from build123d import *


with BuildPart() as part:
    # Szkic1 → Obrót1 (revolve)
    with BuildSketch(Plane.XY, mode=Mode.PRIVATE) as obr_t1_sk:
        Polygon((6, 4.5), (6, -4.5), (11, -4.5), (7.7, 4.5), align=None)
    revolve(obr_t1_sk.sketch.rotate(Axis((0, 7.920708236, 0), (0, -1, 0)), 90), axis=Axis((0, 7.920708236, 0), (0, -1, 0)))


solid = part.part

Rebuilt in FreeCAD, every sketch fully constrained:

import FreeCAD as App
import Part
import Sketcher
from FreeCAD import Vector


def add_polygon(sketch, points):
    """Adds a closed chain of lines whose ends are joined by coincident constraints."""
    first, n = sketch.GeometryCount, len(points)
    for a, b in zip(points, points[1:] + points[:1]):
        sketch.addGeometry(Part.LineSegment(App.Vector(*a, 0), App.Vector(*b, 0)), False)
    for i in range(n):
        sketch.addConstraint(Sketcher.Constraint("Coincident", first + i, 2, first + (i + 1) % n, 1))

doc = App.newDocument("Part")
body = doc.addObject("PartDesign::Body", "Body")

sketch1 = body.newObject("Sketcher::SketchObject", "Sketch")
sketch1.AttachmentSupport = (doc.getObject("XY_Plane"), [""])
sketch1.MapMode = "FlatFace"
add_polygon(sketch1, [(6, 4.5), (6, -4.5), (11, -4.5), (7.7, 4.5)])
sketch1.addConstraint([
    Sketcher.Constraint("Vertical", 0),
    Sketcher.Constraint("Horizontal", 1),
    Sketcher.Constraint("Horizontal", 3),
    Sketcher.Constraint("DistanceX", 1, 1, 1, 2, 5.0),
    Sketcher.Constraint("DistanceY", 0, 2, 0, 1, 9.0),
    Sketcher.Constraint("DistanceX", 3, 2, 3, 1, 1.7),
    Sketcher.Constraint("DistanceX", -1, 1, 0, 2, 6.0),
    Sketcher.Constraint("DistanceY", 0, 2, -1, 1, 4.5),
])
revolution = body.newObject("PartDesign::Revolution", "Revolution")
revolution.Profile = sketch1
revolution.ReferenceAxis = (sketch1, ["V_Axis"])
revolution.Angle = 360

doc.recompute()
